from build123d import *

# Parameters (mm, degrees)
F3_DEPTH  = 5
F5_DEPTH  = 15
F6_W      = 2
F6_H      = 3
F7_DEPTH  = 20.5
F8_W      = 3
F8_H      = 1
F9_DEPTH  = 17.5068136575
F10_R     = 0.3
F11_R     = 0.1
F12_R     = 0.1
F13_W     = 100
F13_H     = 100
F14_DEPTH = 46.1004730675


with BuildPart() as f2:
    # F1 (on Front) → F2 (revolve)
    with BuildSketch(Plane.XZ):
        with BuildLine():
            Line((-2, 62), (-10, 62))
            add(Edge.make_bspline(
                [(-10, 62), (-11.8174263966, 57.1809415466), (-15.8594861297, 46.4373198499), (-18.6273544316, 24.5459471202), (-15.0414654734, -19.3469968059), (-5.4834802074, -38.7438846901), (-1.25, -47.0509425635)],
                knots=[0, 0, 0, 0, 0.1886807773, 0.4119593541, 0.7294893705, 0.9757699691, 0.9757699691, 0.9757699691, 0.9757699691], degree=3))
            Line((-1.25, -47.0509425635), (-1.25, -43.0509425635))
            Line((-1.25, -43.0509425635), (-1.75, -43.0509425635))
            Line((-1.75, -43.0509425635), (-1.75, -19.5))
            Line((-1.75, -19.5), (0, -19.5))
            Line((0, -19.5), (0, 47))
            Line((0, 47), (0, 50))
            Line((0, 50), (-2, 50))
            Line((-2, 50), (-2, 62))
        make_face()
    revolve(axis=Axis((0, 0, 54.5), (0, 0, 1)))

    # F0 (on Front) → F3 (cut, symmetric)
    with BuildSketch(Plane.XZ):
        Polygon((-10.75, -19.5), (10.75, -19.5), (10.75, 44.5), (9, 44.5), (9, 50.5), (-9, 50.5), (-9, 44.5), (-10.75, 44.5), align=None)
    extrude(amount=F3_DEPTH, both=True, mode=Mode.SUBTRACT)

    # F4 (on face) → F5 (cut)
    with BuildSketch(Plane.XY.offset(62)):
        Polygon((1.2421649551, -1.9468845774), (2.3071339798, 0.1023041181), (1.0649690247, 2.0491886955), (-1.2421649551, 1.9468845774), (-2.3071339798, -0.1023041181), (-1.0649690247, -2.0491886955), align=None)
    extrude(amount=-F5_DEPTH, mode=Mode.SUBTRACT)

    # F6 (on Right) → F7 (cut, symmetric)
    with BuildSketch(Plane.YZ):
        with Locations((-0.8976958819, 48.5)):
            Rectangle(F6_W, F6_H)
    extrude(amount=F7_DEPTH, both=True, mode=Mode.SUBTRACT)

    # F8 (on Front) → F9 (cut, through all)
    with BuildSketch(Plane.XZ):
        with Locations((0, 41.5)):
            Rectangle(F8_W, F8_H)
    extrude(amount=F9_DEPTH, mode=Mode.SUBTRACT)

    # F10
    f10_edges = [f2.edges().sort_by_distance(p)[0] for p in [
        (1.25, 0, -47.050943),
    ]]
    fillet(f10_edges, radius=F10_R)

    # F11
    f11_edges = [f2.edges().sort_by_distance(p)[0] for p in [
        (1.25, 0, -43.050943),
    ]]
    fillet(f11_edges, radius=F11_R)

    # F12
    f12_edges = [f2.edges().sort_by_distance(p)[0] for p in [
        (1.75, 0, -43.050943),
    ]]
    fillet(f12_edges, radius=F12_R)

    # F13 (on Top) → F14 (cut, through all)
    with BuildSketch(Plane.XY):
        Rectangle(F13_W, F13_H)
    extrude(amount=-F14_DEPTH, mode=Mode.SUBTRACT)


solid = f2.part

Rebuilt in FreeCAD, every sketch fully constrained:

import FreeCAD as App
import Part
import Sketcher


def edges_at(feature, points):
    """Names of the edges that pass closest to the given points."""
    edges = feature.Shape.Edges
    near = lambda p: min(range(len(edges)), key=lambda i: edges[i].distToShape(Part.Vertex(*p))[0])
    return sorted({f"Edge{near(p) + 1}" for p in points})


def add_polygon(sketch, points):
    """Adds a closed chain of lines whose ends are joined by coincident constraints."""
    first, n = sketch.GeometryCount, len(points)
    for a, b in zip(points, points[1:] + points[:1]):
        sketch.addGeometry(Part.LineSegment(App.Vector(*a, 0), App.Vector(*b, 0)), False)
    for i in range(n):
        sketch.addConstraint(Sketcher.Constraint("Coincident", first + i, 2, first + (i + 1) % n, 1))

doc = App.newDocument("Part")
body = doc.addObject("PartDesign::Body", "Body")

# Sketch on XZ plane
sketch1 = body.newObject("Sketcher::SketchObject", "Sketch")
sketch1.AttachmentSupport = (doc.getObject("XZ_Plane"), [""])
sketch1.MapMode = "FlatFace"
sketch1.addGeometry([
    Part.LineSegment(App.Vector(-2, 62, 0), App.Vector(-10, 62, 0)),  # 0
    Part.BSplineCurve([App.Vector(-10, 62, 0), App.Vector(-11.817426, 57.180942, 0), App.Vector(-15.859486, 46.43732, 0), App.Vector(-18.627354, 24.545947, 0), App.Vector(-15.041465, -19.346997, 0), App.Vector(-5.48348, -38.743885, 0), App.Vector(-1.25, -47.050943, 0)], [4, 1, 1, 1, 4], [0, 0.188680777, 0.411959354, 0.72948937, 0.975769969], False, 3, [1, 1, 1, 1, 1, 1, 1], False),  # 1
    Part.LineSegment(App.Vector(-1.25, -47.050943, 0), App.Vector(-1.25, -43.050943, 0)),  # 2
    Part.LineSegment(App.Vector(-1.25, -43.050943, 0), App.Vector(-1.75, -43.050943, 0)),  # 3
    Part.LineSegment(App.Vector(-1.75, -43.050943, 0), App.Vector(-1.75, -19.5, 0)),  # 4
    Part.LineSegment(App.Vector(-1.75, -19.5, 0), App.Vector(0, -19.5, 0)),  # 5
    Part.LineSegment(App.Vector(0, -19.5, 0), App.Vector(0, 50, 0)),  # 6
    Part.LineSegment(App.Vector(0, 50, 0), App.Vector(-2, 50, 0)),  # 7
    Part.LineSegment(App.Vector(-2, 50, 0), App.Vector(-2, 62, 0)),  # 8
], False)
sketch1.addConstraint([
    Sketcher.Constraint("Block", 1),
    Sketcher.Constraint("Coincident", 0, 2, 1, 1),
    Sketcher.Constraint("Coincident", 1, 2, 2, 1),
    Sketcher.Constraint("Coincident", 2, 2, 3, 1),
    Sketcher.Constraint("Coincident", 3, 2, 4, 1),
    Sketcher.Constraint("Coincident", 4, 2, 5, 1),
    Sketcher.Constraint("Coincident", 5, 2, 6, 1),
    Sketcher.Constraint("Coincident", 6, 2, 7, 1),
    Sketcher.Constraint("Coincident", 7, 2, 8, 1),
    Sketcher.Constraint("Coincident", 8, 2, 0, 1),
    Sketcher.Constraint("Horizontal", 0),
    Sketcher.Constraint("Vertical", 2),
    Sketcher.Constraint("Horizontal", 3),
    Sketcher.Constraint("Vertical", 4),
    Sketcher.Constraint("Horizontal", 5),
    Sketcher.Constraint("Vertical", 6),
    Sketcher.Constraint("Horizontal", 7),
    Sketcher.Constraint("Vertical", 8),
    Sketcher.Constraint("PointOnObject", 5, 2, -2),
    Sketcher.Constraint("DistanceX", 0, 2, 0, 1, 8.0),
    Sketcher.Constraint("DistanceY", 2, 1, 2, 2, 4.0),
    Sketcher.Constraint("DistanceY", 8, 1, 8, 2, 12.0),
    Sketcher.Constraint("DistanceX", 3, 2, 3, 1, 0.5),
    Sketcher.Constraint("DistanceY", 6, 1, 6, 2, 69.5),
])
revolution = body.newObject("PartDesign::Revolution", "Revolution")
revolution.Profile = sketch1
revolution.ReferenceAxis = (sketch1, ["V_Axis"])
revolution.Angle = 360

# Sketch on XZ plane
sketch2 = body.newObject("Sketcher::SketchObject", "Sketch001")
sketch2.AttachmentSupport = (doc.getObject("XZ_Plane"), [""])
sketch2.MapMode = "FlatFace"
add_polygon(sketch2, [(-10.8, -19.5), (10.8, -19.5), (10.8, 44.5), (9, 44.5), (9, 50.5), (-9, 50.5), (-9, 44.5), (-10.8, 44.5)])  # lines 0-7
sketch2.addConstraint([
    Sketcher.Constraint("Horizontal", 0),
    Sketcher.Constraint("Vertical", 1),
    Sketcher.Constraint("Horizontal", 2),
    Sketcher.Constraint("Vertical", 3),
    Sketcher.Constraint("Horizontal", 4),
    Sketcher.Constraint("Vertical", 5),
    Sketcher.Constraint("Horizontal", 6),
    Sketcher.Constraint("Vertical", 7),
    Sketcher.Constraint("Symmetric", 2, 2, 5, 2, -2),
    Sketcher.Constraint("Equal", 2, 6),
    Sketcher.Constraint("DistanceX", 4, 2, 4, 1, 18.0),
    Sketcher.Constraint("DistanceY", 1, 1, 1, 2, 64.0),
    Sketcher.Constraint("DistanceY", 3, 1, 3, 2, 6.0),
    Sketcher.Constraint("DistanceX", 0, 1, 0, 2, 21.5),
    Sketcher.Constraint("DistanceY", 0, 2, -1, 1, 19.5),
])
pocket1 = body.newObject("PartDesign::Pocket", "Pocket")
pocket1.Profile = sketch2
pocket1.Length = 10
pocket1.Midplane = True

# Sketch on XY plane
sketch3 = body.newObject("Sketcher::SketchObject", "Sketch002")
sketch3.AttachmentSupport = (doc.getObject("XY_Plane"), [""])
sketch3.MapMode = "FlatFace"
sketch3.AttachmentOffset = App.Placement(App.Vector(0, 0, 62), App.Rotation())
add_polygon(sketch3, [(1.2, -1.9), (2.3, 0.1), (1.1, 2), (-1.2, 1.9), (-2.3, -0.1), (-1.1, -2)])  # lines 0-5
sketch3.addConstraint([
    Sketcher.Constraint("Symmetric", 0, 2, 3, 2, -1, 1),
    Sketcher.Constraint("Symmetric", 1, 2, 4, 2, -1, 1),
    Sketcher.Constraint("Symmetric", 2, 2, 5, 2, -1, 1),
    Sketcher.Constraint("Equal", 0, 1),
    Sketcher.Constraint("Equal", 1, 2),
    Sketcher.Constraint("Distance", 0, 2.309401),
    Sketcher.Constraint("DistanceX", 2, 2, 0, 2, 3.549299),
    Sketcher.Constraint("DistanceX", -1, 1, 1, 2, 1.064969),
    Sketcher.Constraint("DistanceY", -1, 1, 1, 2, 2.049189),
])
pocket2 = body.newObject("PartDesign::Pocket", "Pocket001")
pocket2.Profile = sketch3
pocket2.Length = 15

# Sketch on YZ plane
sketch4 = body.newObject("Sketcher::SketchObject", "Sketch003")
sketch4.AttachmentSupport = (doc.getObject("YZ_Plane"), [""])
sketch4.MapMode = "FlatFace"
add_polygon(sketch4, [(-1.9, 50), (-1.9, 47), (0.1, 47), (0.1, 50)])  # lines 0-3
sketch4.addConstraint([
    Sketcher.Constraint("Vertical", 0),
    Sketcher.Constraint("Horizontal", 1),
    Sketcher.Constraint("Vertical", 2),
    Sketcher.Constraint("Horizontal", 3),
    Sketcher.Constraint("DistanceX", 1, 1, 1, 2, 2.0),
    Sketcher.Constraint("DistanceY", 0, 2, 0, 1, 3.0),
    Sketcher.Constraint("DistanceY", -1, 1, 0, 2, 47.0),
    Sketcher.Constraint("DistanceX", 0, 2, -1, 1, 1.897696),
])
pocket3 = body.newObject("PartDesign::Pocket", "Pocket002")
pocket3.Profile = sketch4
pocket3.Length = 41
pocket3.Midplane = True

# Sketch on XZ plane
sketch5 = body.newObject("Sketcher::SketchObject", "Sketch004")
sketch5.AttachmentSupport = (doc.getObject("XZ_Plane"), [""])
sketch5.MapMode = "FlatFace"
add_polygon(sketch5, [(-1.5, 42), (-1.5, 41), (1.5, 41), (1.5, 42)])  # lines 0-3
sketch5.addConstraint([
    Sketcher.Constraint("Vertical", 0),
    Sketcher.Constraint("Horizontal", 1),
    Sketcher.Constraint("Vertical", 2),
    Sketcher.Constraint("Horizontal", 3),
    Sketcher.Constraint("DistanceX", 1, 1, 1, 2, 3.0),
    Sketcher.Constraint("DistanceY", 0, 2, 0, 1, 1.0),
    Sketcher.Constraint("DistanceY", -1, 1, 0, 2, 41.0),
    Sketcher.Constraint("DistanceX", 0, 2, -1, 1, 1.5),
])
pocket4 = body.newObject("PartDesign::Pocket", "Pocket003")
pocket4.Profile = sketch5
pocket4.Type = "ThroughAll"
pocket4.Reversed = True
doc.recompute()

fillet = body.newObject("PartDesign::Fillet", "Fillet")
fillet.Base = (pocket4, edges_at(pocket4, [(1.25, 0, -47.051)]))
fillet.Radius = 0.3
doc.recompute()

fillet2 = body.newObject("PartDesign::Fillet", "Fillet001")
fillet2.Base = (fillet, edges_at(fillet, [(1.25, 0, -43.051)]))
fillet2.Radius = 0.1
doc.recompute()

fillet3 = body.newObject("PartDesign::Fillet", "Fillet002")
fillet3.Base = (fillet2, edges_at(fillet2, [(1.75, 0, -43.051)]))
fillet3.Radius = 0.1

# Sketch on XY plane
sketch6 = body.newObject("Sketcher::SketchObject", "Sketch005")
sketch6.AttachmentSupport = (doc.getObject("XY_Plane"), [""])
sketch6.MapMode = "FlatFace"
add_polygon(sketch6, [(-50, 50), (-50, -50), (50, -50), (50, 50)])  # lines 0-3
sketch6.addConstraint([
    Sketcher.Constraint("Vertical", 0),
    Sketcher.Constraint("Horizontal", 1),
    Sketcher.Constraint("Vertical", 2),
    Sketcher.Constraint("Horizontal", 3),
    Sketcher.Constraint("Symmetric", 0, 2, 2, 2, -1, 1),
    Sketcher.Constraint("Equal", 3, 0),
    Sketcher.Constraint("DistanceX", 1, 1, 1, 2, 100.0),
])
pocket5 = body.newObject("PartDesign::Pocket", "Pocket004")
pocket5.Profile = sketch6
pocket5.Type = "ThroughAll"

doc.recompute()
